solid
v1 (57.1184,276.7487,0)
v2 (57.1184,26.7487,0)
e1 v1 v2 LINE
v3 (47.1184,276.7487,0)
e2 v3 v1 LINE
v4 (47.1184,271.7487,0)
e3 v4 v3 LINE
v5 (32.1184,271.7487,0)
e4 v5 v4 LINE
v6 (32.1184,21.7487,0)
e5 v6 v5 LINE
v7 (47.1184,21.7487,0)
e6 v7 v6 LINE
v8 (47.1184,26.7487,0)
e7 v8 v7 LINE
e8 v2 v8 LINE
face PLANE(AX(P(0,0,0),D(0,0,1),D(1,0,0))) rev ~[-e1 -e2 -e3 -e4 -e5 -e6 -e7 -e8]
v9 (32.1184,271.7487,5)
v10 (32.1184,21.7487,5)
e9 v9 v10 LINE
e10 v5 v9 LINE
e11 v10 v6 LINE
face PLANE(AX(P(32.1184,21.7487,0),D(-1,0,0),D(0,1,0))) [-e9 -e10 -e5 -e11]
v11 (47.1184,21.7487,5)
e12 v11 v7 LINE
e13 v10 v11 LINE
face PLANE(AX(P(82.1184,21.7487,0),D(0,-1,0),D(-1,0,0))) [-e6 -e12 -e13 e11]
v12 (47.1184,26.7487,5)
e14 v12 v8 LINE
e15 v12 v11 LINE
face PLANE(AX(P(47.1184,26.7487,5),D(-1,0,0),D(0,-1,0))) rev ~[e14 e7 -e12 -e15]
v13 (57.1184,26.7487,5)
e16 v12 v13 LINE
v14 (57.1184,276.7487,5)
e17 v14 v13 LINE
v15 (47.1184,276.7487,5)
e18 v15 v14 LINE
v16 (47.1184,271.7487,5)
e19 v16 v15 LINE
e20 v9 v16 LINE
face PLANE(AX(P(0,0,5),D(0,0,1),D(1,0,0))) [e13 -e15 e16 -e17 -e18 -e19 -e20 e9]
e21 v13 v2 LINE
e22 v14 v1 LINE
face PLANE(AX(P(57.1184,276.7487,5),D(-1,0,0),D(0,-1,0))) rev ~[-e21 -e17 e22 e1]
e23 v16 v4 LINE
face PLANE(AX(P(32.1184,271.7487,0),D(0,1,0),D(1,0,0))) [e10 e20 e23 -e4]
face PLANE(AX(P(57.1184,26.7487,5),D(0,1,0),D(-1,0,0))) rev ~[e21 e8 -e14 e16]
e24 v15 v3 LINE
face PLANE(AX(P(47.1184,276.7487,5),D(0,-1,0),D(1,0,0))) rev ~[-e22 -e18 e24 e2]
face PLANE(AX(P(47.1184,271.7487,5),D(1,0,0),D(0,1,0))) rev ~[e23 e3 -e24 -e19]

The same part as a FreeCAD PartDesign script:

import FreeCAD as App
import Part
import Sketcher

V = App.Vector
Q = App.Units.Quantity

doc = App.newDocument("Part")
body = doc.addObject("PartDesign::Body", "Body")

# Sketch on XY plane
sketch1 = body.newObject("Sketcher::SketchObject", "Sketch")
sketch1.AttachmentSupport = (doc.getObject("XY_Plane"), [""])
sketch1.MapMode = "FlatFace"
sketch1.addGeometry(Part.LineSegment(V(82.1184, 271.7487, 0), V(32.1184, 271.7487, 0)), False)
sketch1.addGeometry(Part.LineSegment(V(32.1184, 271.7487, 0), V(32.1184, 21.7487, 0)), False)
sketch1.addGeometry(Part.LineSegment(V(32.1184, 21.7487, 0), V(82.1184, 21.7487, 0)), False)
sketch1.addGeometry(Part.LineSegment(V(82.1184, 21.7487, 0), V(82.1184, 271.7487, 0)), False)
sketch1.addConstraint(Sketcher.Constraint("Coincident", 0, 2, 1, 1))
sketch1.addConstraint(Sketcher.Constraint("Coincident", 1, 2, 2, 1))
sketch1.addConstraint(Sketcher.Constraint("Coincident", 2, 2, 3, 1))
sketch1.addConstraint(Sketcher.Constraint("Coincident", 3, 2, 0, 1))
sketch1.addConstraint(Sketcher.Constraint("Horizontal", 0))
sketch1.addConstraint(Sketcher.Constraint("Vertical", 1))
sketch1.addConstraint(Sketcher.Constraint("Horizontal", 2))
sketch1.addConstraint(Sketcher.Constraint("Vertical", 3))
sketch1.addConstraint(Sketcher.Constraint("DistanceX", 0, 2, 0, 1, Q("50 mm")))
sketch1.addConstraint(Sketcher.Constraint("DistanceY", 1, 2, 1, 1, Q("250 mm")))
sketch1.addConstraint(Sketcher.Constraint("DistanceX", -1, 1, 0, 2, Q("32.1184 mm")))
sketch1.addConstraint(Sketcher.Constraint("DistanceY", -1, 1, 0, 2, Q("271.7487 mm")))
pad1 = body.newObject("PartDesign::Pad", "Pad")
pad1.Profile = sketch1
pad1.Length = 5

# Sketch on XY plane
sketch2 = body.newObject("Sketcher::SketchObject", "Sketch001")
sketch2.AttachmentSupport = (doc.getObject("XY_Plane"), [""])
sketch2.MapMode = "FlatFace"
sketch2.AttachmentOffset = App.Placement(V(0, 0, 5), App.Rotation())
sketch2.addGeometry(Part.LineSegment(V(47.1184, 271.7487, 0), V(67.1184, 271.7487, 0)), False)
sketch2.addGeometry(Part.LineSegment(V(67.1184, 271.7487, 0), V(67.1184, 276.7487, 0)), False)
sketch2.addGeometry(Part.LineSegment(V(67.1184, 276.7487, 0), V(47.1184, 276.7487, 0)), False)
sketch2.addGeometry(Part.LineSegment(V(47.1184, 276.7487, 0), V(47.1184, 271.7487, 0)), False)
sketch2.addConstraint(Sketcher.Constraint("Coincident", 0, 2, 1, 1))
sketch2.addConstraint(Sketcher.Constraint("Coincident", 1, 2, 2, 1))
sketch2.addConstraint(Sketcher.Constraint("Coincident", 2, 2, 3, 1))
sketch2.addConstraint(Sketcher.Constraint("Coincident", 3, 2, 0, 1))
sketch2.addConstraint(Sketcher.Constraint("Horizontal", 0))
sketch2.addConstraint(Sketcher.Constraint("Vertical", 1))
sketch2.addConstraint(Sketcher.Constraint("Horizontal", 2))
sketch2.addConstraint(Sketcher.Constraint("Vertical", 3))
sketch2.addConstraint(Sketcher.Constraint("DistanceX", 0, 1, 0, 2, Q("20 mm")))
sketch2.addConstraint(Sketcher.Constraint("DistanceY", 1, 1, 1, 2, Q("5 mm")))
sketch2.addConstraint(Sketcher.Constraint("DistanceX", -1, 1, 0, 2, Q("67.1184 mm")))
sketch2.addConstraint(Sketcher.Constraint("DistanceY", -1, 1, 0, 2, Q("271.7487 mm")))
pad2 = body.newObject("PartDesign::Pad", "Pad001")
pad2.Profile = sketch2
pad2.Length = 5
pad2.Reversed = True

# Sketch on XY plane
sketch3 = body.newObject("Sketcher::SketchObject", "Sketch002")
sketch3.AttachmentSupport = (doc.getObject("XY_Plane"), [""])
sketch3.MapMode = "FlatFace"
sketch3.AttachmentOffset = App.Placement(V(0, 0, 5), App.Rotation())
sketch3.addGeometry(Part.LineSegment(V(82.1184, 21.7487, 0), V(67.1184, 21.7487, 0)), False)
sketch3.addGeometry(Part.LineSegment(V(67.1184, 21.7487, 0), V(67.1184, 16.7487, 0)), False)
sketch3.addGeometry(Part.LineSegment(V(67.1184, 16.7487, 0), V(82.1184, 16.7487, 0)), False)
sketch3.addGeometry(Part.LineSegment(V(82.1184, 16.7487, 0), V(82.1184, 21.7487, 0)), False)
sketch3.addGeometry(Part.LineSegment(V(47.1184, 21.7487, 0), V(32.1184, 21.7487, 0)), False)
sketch3.addGeometry(Part.LineSegment(V(32.1184, 21.7487, 0), V(32.1184, 16.7487, 0)), False)
sketch3.addGeometry(Part.LineSegment(V(32.1184, 16.7487, 0), V(47.1184, 16.7487, 0)), False)
sketch3.addGeometry(Part.LineSegment(V(47.1184, 16.7487, 0), V(47.1184, 21.7487, 0)), False)
sketch3.addConstraint(Sketcher.Constraint("Coincident", 0, 2, 1, 1))
sketch3.addConstraint(Sketcher.Constraint("Coincident", 1, 2, 2, 1))
sketch3.addConstraint(Sketcher.Constraint("Coincident", 2, 2, 3, 1))
sketch3.addConstraint(Sketcher.Constraint("Coincident", 3, 2, 0, 1))
sketch3.addConstraint(Sketcher.Constraint("Coincident", 4, 2, 5, 1))
sketch3.addConstraint(Sketcher.Constraint("Coincident", 5, 2, 6, 1))
sketch3.addConstraint(Sketcher.Constraint("Coincident", 6, 2, 7, 1))
sketch3.addConstraint(Sketcher.Constraint("Coincident", 7, 2, 4, 1))
sketch3.addConstraint(Sketcher.Constraint("Horizontal", 0))
sketch3.addConstraint(Sketcher.Constraint("Vertical", 1))
sketch3.addConstraint(Sketcher.Constraint("Horizontal", 2))
sketch3.addConstraint(Sketcher.Constraint("Vertical", 3))
sketch3.addConstraint(Sketcher.Constraint("Horizontal", 4))
sketch3.addConstraint(Sketcher.Constraint("Vertical", 5))
sketch3.addConstraint(Sketcher.Constraint("Horizontal", 6))
sketch3.addConstraint(Sketcher.Constraint("Vertical", 7))
sketch3.addConstraint(Sketcher.Constraint("Horizontal", 3, 2, 4, 2))
sketch3.addConstraint(Sketcher.Constraint("Horizontal", 2, 2, 5, 2))
sketch3.addConstraint(Sketcher.Constraint("Equal", 2, 4))
sketch3.addConstraint(Sketcher.Constraint("DistanceX", 0, 2, 0, 1, Q("15 mm")))
sketch3.addConstraint(Sketcher.Constraint("DistanceY", 1, 2, 1, 1, Q("5 mm")))
sketch3.addConstraint(Sketcher.Constraint("DistanceX", 4, 2, 0, 2, Q("35 mm")))
sketch3.addConstraint(Sketcher.Constraint("DistanceX", -1, 1, 0, 2, Q("67.1184 mm")))
sketch3.addConstraint(Sketcher.Constraint("DistanceY", -1, 1, 0, 2, Q("21.7487 mm")))
pad3 = body.newObject("PartDesign::Pad", "Pad002")
pad3.Profile = sketch3
pad3.Length = 5
pad3.Reversed = True

# Sketch on XY plane
sketch4 = body.newObject("Sketcher::SketchObject", "Sketch003")
sketch4.AttachmentSupport = (doc.getObject("XY_Plane"), [""])
sketch4.MapMode = "FlatFace"
sketch4.AttachmentOffset = App.Placement(V(0, 0, 5), App.Rotation())
sketch4.addGeometry(Part.LineSegment(V(47.1184, 16.7487, 0), V(47.1184, 21.7487, 0)), False)
sketch4.addGeometry(Part.LineSegment(V(47.1184, 21.7487, 0), V(32.1184, 21.7487, 0)), False)
sketch4.addGeometry(Part.LineSegment(V(32.1184, 21.7487, 0), V(32.1184, 16.7487, 0)), False)
sketch4.addGeometry(Part.LineSegment(V(32.1184, 16.7487, 0), V(47.1184, 16.7487, 0)), False)
sketch4.addConstraint(Sketcher.Constraint("Coincident", 0, 2, 1, 1))
sketch4.addConstraint(Sketcher.Constraint("Coincident", 1, 2, 2, 1))
sketch4.addConstraint(Sketcher.Constraint("Coincident", 2, 2, 3, 1))
sketch4.addConstraint(Sketcher.Constraint("Coincident", 3, 2, 0, 1))
sketch4.addConstraint(Sketcher.Constraint("Vertical", 0))
sketch4.addConstraint(Sketcher.Constraint("Horizontal", 1))
sketch4.addConstraint(Sketcher.Constraint("Vertical", 2))
sketch4.addConstraint(Sketcher.Constraint("Horizontal", 3))
sketch4.addConstraint(Sketcher.Constraint("DistanceX", 1, 2, 1, 1, Q("15 mm")))
sketch4.addConstraint(Sketcher.Constraint("DistanceY", 0, 1, 0, 2, Q("5 mm")))
sketch4.addConstraint(Sketcher.Constraint("DistanceX", -1, 1, 0, 2, Q("47.1184 mm")))
sketch4.addConstraint(Sketcher.Constraint("DistanceY", -1, 1, 0, 2, Q("21.7487 mm")))
pocket1 = body.newObject("PartDesign::Pocket", "Pocket")
pocket1.Profile = sketch4
pocket1.Length = 15

# Sketch on XY plane
sketch5 = body.newObject("Sketcher::SketchObject", "Sketch004")
sketch5.AttachmentSupport = (doc.getObject("XY_Plane"), [""])
sketch5.MapMode = "FlatFace"
sketch5.AttachmentOffset = App.Placement(V(0, 0, 5), App.Rotation())
sketch5.addGeometry(Part.LineSegment(V(47.1184, 26.7487, 0), V(47.1184, 21.7487, 0)), False)
sketch5.addGeometry(Part.LineSegment(V(47.1184, 21.7487, 0), V(67.1184, 21.7487, 0)), False)
sketch5.addGeometry(Part.LineSegment(V(67.1184, 21.7487, 0), V(67.1184, 26.7487, 0)), False)
sketch5.addGeometry(Part.LineSegment(V(67.1184, 26.7487, 0), V(47.1184, 26.7487, 0)), False)
sketch5.addConstraint(Sketcher.Constraint("Coincident", 0, 2, 1, 1))
sketch5.addConstraint(Sketcher.Constraint("Coincident", 1, 2, 2, 1))
sketch5.addConstraint(Sketcher.Constraint("Coincident", 2, 2, 3, 1))
sketch5.addConstraint(Sketcher.Constraint("Coincident", 3, 2, 0, 1))
sketch5.addConstraint(Sketcher.Constraint("Vertical", 0))
sketch5.addConstraint(Sketcher.Constraint("Horizontal", 1))
sketch5.addConstraint(Sketcher.Constraint("Vertical", 2))
sketch5.addConstraint(Sketcher.Constraint("Horizontal", 3))
sketch5.addConstraint(Sketcher.Constraint("DistanceY", 0, 2, 0, 1, Q("5 mm")))
sketch5.addConstraint(Sketcher.Constraint("DistanceX", 1, 1, 1, 2, Q("20 mm")))
sketch5.addConstraint(Sketcher.Constraint("DistanceX", -1, 1, 0, 2, Q("47.1184 mm")))
sketch5.addConstraint(Sketcher.Constraint("DistanceY", -1, 1, 0, 2, Q("21.7487 mm")))
pocket2 = body.newObject("PartDesign::Pocket", "Pocket001")
pocket2.Profile = sketch5
pocket2.Length = 15

# Sketch on XY plane
sketch6 = body.newObject("Sketcher::SketchObject", "Sketch005")
sketch6.AttachmentSupport = (doc.getObject("XY_Plane"), [""])
sketch6.MapMode = "FlatFace"
sketch6.AttachmentOffset = App.Placement(V(0, 0, 5), App.Rotation())
sketch6.addGeometry(Part.LineSegment(V(82.1184, 21.7487, 0), V(67.1184, 21.7487, 0)), False)
sketch6.addGeometry(Part.LineSegment(V(67.1184, 21.7487, 0), V(67.1184, 16.7487, 0)), False)
sketch6.addGeometry(Part.LineSegment(V(67.1184, 16.7487, 0), V(82.1184, 16.7487, 0)), False)
sketch6.addGeometry(Part.LineSegment(V(82.1184, 16.7487, 0), V(82.1184, 21.7487, 0)), False)
sketch6.addConstraint(Sketcher.Constraint("Coincident", 0, 2, 1, 1))
sketch6.addConstraint(Sketcher.Constraint("Coincident", 1, 2, 2, 1))
sketch6.addConstraint(Sketcher.Constraint("Coincident", 2, 2, 3, 1))
sketch6.addConstraint(Sketcher.Constraint("Coincident", 3, 2, 0, 1))
sketch6.addConstraint(Sketcher.Constraint("Horizontal", 0))
sketch6.addConstraint(Sketcher.Constraint("Vertical", 1))
sketch6.addConstraint(Sketcher.Constraint("Horizontal", 2))
sketch6.addConstraint(Sketcher.Constraint("Vertical", 3))
sketch6.addConstraint(Sketcher.Constraint("DistanceX", 0, 2, 0, 1, Q("15 mm")))
sketch6.addConstraint(Sketcher.Constraint("DistanceY", 1, 2, 1, 1, Q("5 mm")))
sketch6.addConstraint(Sketcher.Constraint("DistanceX", -1, 1, 0, 2, Q("67.1184 mm")))
sketch6.addConstraint(Sketcher.Constraint("DistanceY", -1, 1, 0, 2, Q("21.7487 mm")))
pocket3 = body.newObject("PartDesign::Pocket", "Pocket002")
pocket3.Profile = sketch6
pocket3.Length = 15

# Sketch on XY plane
sketch7 = body.newObject("Sketcher::SketchObject", "Sketch006")
sketch7.AttachmentSupport = (doc.getObject("XY_Plane"), [""])
sketch7.MapMode = "FlatFace"
sketch7.AttachmentOffset = App.Placement(V(0, 0, 5), App.Rotation())
sketch7.addGeometry(Part.LineSegment(V(67.1184, 276.7487, 0), V(57.1184, 276.7487, 0)), False)
sketch7.addGeometry(Part.LineSegment(V(57.1184, 276.7487, 0), V(57.1184, 26.7487, 0)), False)
sketch7.addGeometry(Part.LineSegment(V(57.1184, 26.7487, 0), V(67.1184, 26.7487, 0)), False)
sketch7.addGeometry(Part.LineSegment(V(67.1184, 26.7487, 0), V(67.1184, 21.7487, 0)), False)
sketch7.addGeometry(Part.LineSegment(V(67.1184, 21.7487, 0), V(82.1184, 21.7487, 0)), False)
sketch7.addGeometry(Part.LineSegment(V(82.1184, 21.7487, 0), V(82.1184, 271.7487, 0)), False)
sketch7.addGeometry(Part.LineSegment(V(82.1184, 271.7487, 0), V(67.1184, 271.7487, 0)), False)
sketch7.addGeometry(Part.LineSegment(V(67.1184, 271.7487, 0), V(67.1184, 276.7487, 0)), False)
sketch7.addConstraint(Sketcher.Constraint("Coincident", 0, 2, 1, 1))
sketch7.addConstraint(Sketcher.Constraint("Coincident", 1, 2, 2, 1))
sketch7.addConstraint(Sketcher.Constraint("Coincident", 2, 2, 3, 1))
sketch7.addConstraint(Sketcher.Constraint("Coincident", 3, 2, 4, 1))
sketch7.addConstraint(Sketcher.Constraint("Coincident", 4, 2, 5, 1))
sketch7.addConstraint(Sketcher.Constraint("Coincident", 5, 2, 6, 1))
sketch7.addConstraint(Sketcher.Constraint("Coincident", 6, 2, 7, 1))
sketch7.addConstraint(Sketcher.Constraint("Coincident", 7, 2, 0, 1))
sketch7.addConstraint(Sketcher.Constraint("Horizontal", 0))
sketch7.addConstraint(Sketcher.Constraint("Vertical", 1))
sketch7.addConstraint(Sketcher.Constraint("Horizontal", 2))
sketch7.addConstraint(Sketcher.Constraint("Vertical", 3))
sketch7.addConstraint(Sketcher.Constraint("Horizontal", 4))
sketch7.addConstraint(Sketcher.Constraint("Vertical", 5))
sketch7.addConstraint(Sketcher.Constraint("Horizontal", 6))
sketch7.addConstraint(Sketcher.Constraint("Vertical", 7))
sketch7.addConstraint(Sketcher.Constraint("Vertical", 3, 2, 6, 2))
sketch7.addConstraint(Sketcher.Constraint("Equal", 1, 5))
sketch7.addConstraint(Sketcher.Constraint("DistanceX", 0, 2, 0, 1, Q("10 mm")))
sketch7.addConstraint(Sketcher.Constraint("DistanceX", 4, 1, 4, 2, Q("15 mm")))
sketch7.addConstraint(Sketcher.Constraint("DistanceY", 1, 2, 1, 1, Q("250 mm")))
sketch7.addConstraint(Sketcher.Constraint("DistanceY", 3, 2, 3, 1, Q("5 mm")))
sketch7.addConstraint(Sketcher.Constraint("DistanceX", -1, 1, 0, 2, Q("57.1184 mm")))
sketch7.addConstraint(Sketcher.Constraint("DistanceY", -1, 1, 0, 2, Q("276.7487 mm")))
pocket4 = body.newObject("PartDesign::Pocket", "Pocket003")
pocket4.Profile = sketch7
pocket4.Length = 15

doc.recompute()
